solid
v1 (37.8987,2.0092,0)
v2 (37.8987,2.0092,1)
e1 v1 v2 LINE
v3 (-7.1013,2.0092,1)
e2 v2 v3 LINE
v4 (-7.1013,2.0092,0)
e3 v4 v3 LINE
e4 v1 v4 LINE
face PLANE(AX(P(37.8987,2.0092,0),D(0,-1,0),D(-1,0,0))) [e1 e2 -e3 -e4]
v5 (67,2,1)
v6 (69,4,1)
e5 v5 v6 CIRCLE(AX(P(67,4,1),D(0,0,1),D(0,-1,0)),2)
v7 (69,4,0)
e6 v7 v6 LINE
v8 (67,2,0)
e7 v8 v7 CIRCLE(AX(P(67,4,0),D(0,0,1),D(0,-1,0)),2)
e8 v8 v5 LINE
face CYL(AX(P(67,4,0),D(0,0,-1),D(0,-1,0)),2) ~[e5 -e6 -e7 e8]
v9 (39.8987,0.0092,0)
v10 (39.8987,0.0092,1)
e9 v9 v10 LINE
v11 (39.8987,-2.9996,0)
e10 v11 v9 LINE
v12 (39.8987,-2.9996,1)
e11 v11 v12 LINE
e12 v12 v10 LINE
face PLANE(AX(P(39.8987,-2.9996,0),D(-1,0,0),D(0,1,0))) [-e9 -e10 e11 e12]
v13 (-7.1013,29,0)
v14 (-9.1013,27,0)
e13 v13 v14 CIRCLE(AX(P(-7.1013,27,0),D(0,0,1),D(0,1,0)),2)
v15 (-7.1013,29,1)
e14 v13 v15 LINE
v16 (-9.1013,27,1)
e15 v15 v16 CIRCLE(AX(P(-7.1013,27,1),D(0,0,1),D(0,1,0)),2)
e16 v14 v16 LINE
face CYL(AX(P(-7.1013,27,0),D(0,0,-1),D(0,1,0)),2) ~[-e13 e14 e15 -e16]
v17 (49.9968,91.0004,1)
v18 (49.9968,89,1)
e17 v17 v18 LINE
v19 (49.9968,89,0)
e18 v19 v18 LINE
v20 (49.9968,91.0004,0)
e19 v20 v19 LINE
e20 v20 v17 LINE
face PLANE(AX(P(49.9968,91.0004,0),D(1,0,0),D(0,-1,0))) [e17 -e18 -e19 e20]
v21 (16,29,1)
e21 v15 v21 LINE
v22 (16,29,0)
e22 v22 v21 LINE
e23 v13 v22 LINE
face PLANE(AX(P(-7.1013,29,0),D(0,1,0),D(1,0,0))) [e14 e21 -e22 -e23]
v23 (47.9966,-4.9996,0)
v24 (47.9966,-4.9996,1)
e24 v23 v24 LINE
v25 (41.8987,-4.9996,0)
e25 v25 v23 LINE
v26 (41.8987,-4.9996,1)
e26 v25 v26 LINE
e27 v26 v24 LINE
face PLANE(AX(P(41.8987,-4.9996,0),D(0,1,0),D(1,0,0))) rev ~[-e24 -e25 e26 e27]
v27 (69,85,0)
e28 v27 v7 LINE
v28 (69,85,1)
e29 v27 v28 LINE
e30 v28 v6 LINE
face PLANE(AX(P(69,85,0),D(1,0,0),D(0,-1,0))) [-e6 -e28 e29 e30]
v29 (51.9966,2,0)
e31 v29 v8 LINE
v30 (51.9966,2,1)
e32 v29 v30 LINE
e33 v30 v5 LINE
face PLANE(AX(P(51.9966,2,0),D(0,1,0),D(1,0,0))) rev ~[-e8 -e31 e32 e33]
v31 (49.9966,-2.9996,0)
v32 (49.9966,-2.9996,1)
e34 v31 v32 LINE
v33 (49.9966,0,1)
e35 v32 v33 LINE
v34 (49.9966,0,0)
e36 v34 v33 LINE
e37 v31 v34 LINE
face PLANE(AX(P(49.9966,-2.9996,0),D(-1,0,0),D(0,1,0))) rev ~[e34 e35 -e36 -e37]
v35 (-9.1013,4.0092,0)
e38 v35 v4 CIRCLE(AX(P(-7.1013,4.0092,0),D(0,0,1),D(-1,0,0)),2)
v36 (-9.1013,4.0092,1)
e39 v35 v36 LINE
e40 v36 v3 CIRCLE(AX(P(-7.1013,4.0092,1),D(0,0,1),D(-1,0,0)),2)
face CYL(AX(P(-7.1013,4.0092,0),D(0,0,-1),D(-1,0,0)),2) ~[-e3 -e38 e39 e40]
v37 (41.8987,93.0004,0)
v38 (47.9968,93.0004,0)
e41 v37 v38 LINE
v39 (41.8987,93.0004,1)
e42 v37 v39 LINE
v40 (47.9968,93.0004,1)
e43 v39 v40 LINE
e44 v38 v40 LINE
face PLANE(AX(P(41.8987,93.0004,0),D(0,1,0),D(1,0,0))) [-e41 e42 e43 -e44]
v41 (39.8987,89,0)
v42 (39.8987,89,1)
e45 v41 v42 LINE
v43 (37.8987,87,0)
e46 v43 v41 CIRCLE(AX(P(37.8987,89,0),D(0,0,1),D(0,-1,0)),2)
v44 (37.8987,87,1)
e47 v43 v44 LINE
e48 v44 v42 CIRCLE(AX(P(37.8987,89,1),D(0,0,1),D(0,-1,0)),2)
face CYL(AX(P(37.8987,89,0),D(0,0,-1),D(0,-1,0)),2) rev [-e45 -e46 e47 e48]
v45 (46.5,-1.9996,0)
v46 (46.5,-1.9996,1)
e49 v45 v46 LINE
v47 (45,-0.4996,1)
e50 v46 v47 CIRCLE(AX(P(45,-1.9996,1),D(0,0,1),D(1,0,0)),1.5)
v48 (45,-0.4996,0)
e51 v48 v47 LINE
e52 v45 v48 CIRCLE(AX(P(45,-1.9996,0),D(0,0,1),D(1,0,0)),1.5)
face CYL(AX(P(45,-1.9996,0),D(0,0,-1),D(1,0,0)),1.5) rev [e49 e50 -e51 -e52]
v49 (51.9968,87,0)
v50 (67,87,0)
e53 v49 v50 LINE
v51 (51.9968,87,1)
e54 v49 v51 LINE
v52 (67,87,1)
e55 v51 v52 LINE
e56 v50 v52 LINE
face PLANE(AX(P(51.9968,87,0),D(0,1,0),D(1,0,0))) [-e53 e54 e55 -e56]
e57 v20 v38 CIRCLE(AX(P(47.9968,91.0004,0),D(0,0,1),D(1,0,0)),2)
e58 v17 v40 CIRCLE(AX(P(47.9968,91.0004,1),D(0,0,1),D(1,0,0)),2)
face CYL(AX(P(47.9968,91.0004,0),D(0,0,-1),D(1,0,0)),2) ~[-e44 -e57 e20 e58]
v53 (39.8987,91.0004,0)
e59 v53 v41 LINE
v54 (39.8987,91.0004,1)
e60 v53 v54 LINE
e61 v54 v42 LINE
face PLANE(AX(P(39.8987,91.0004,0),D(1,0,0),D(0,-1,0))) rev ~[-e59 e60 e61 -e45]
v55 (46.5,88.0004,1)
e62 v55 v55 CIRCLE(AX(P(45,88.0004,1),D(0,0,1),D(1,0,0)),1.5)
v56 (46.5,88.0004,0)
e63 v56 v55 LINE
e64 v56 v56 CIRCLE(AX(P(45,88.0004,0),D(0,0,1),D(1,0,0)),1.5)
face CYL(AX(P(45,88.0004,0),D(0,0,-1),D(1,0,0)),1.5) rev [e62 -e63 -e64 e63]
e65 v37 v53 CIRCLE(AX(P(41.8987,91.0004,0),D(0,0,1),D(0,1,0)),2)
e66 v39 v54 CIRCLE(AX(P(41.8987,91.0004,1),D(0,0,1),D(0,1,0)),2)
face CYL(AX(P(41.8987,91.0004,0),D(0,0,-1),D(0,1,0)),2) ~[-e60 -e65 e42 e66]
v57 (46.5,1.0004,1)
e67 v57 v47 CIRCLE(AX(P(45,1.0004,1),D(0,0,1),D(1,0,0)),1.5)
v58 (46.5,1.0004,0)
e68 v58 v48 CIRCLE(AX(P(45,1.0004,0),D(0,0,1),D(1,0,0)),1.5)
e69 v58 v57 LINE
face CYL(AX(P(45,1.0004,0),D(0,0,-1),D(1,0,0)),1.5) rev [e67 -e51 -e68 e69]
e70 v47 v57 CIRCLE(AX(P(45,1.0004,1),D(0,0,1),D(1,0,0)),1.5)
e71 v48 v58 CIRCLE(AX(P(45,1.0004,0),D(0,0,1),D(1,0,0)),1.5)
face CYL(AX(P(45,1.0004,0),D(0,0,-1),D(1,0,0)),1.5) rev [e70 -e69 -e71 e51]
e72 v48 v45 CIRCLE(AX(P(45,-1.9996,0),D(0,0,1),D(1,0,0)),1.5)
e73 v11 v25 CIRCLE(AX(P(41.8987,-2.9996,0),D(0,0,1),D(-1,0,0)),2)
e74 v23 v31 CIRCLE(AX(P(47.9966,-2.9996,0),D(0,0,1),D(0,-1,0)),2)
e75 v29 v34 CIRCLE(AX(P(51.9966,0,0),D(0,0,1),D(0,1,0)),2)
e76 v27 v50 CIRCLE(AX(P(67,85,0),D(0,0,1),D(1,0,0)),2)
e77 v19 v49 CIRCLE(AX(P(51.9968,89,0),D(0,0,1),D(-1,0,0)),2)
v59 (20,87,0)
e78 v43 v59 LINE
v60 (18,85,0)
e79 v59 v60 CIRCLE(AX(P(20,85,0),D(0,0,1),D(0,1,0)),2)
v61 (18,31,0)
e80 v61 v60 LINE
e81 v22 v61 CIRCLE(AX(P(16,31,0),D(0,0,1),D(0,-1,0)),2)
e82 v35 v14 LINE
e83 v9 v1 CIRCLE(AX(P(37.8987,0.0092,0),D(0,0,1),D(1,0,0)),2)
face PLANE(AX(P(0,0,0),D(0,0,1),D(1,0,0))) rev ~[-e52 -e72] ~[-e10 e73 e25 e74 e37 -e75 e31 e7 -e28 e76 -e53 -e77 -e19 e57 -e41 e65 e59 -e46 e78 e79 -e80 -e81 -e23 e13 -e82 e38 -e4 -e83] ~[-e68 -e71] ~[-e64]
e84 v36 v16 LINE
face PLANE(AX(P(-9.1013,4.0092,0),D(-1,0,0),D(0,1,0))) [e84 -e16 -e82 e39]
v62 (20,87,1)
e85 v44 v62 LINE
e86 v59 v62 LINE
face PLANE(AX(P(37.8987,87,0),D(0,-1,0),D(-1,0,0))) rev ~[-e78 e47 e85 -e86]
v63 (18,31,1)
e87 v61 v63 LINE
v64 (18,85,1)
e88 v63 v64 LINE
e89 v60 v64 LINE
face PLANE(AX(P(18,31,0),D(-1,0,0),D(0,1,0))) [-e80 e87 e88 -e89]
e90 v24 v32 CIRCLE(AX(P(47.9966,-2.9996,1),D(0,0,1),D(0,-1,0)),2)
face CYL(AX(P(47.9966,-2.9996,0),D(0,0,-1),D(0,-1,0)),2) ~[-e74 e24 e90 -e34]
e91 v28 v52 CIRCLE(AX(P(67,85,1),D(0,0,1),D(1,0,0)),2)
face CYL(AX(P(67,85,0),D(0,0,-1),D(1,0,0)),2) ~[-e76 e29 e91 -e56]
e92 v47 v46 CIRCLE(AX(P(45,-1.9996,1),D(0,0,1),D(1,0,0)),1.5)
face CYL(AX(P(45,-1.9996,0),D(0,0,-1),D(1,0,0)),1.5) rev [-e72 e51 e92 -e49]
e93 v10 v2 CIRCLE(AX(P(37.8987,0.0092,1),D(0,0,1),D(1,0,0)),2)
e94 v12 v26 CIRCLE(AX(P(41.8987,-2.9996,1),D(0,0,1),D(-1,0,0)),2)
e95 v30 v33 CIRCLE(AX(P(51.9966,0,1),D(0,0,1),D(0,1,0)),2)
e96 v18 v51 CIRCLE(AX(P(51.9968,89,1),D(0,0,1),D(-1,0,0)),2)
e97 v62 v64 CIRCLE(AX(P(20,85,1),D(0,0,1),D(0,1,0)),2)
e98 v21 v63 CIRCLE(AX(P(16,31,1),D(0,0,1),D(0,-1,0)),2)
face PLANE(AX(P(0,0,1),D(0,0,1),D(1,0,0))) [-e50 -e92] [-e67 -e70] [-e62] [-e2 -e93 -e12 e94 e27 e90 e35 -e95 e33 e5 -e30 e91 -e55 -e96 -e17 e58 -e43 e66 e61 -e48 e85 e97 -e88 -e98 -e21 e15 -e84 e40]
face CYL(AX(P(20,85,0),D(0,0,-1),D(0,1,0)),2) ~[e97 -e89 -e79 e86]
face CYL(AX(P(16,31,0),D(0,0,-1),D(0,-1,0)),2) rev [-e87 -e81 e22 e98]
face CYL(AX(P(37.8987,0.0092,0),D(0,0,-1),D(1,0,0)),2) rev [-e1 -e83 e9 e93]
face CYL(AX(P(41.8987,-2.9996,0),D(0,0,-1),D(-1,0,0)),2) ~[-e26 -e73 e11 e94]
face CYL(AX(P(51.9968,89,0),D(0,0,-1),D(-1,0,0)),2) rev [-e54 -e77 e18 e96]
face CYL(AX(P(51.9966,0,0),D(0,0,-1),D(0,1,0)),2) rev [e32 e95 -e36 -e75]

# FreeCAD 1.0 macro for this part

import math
import FreeCAD as App
import Part
import Sketcher
Q = App.Units.Quantity

doc = App.newDocument("Part")
params = doc.addObject("Spreadsheet::Sheet", "Params")
for row, (alias, value) in enumerate([
    ("sketch1_diameter", "3 mm"),
    ("sketch1_radius", "2 mm"),
    ("sketch1_width", "45 mm"),
    ("sketch1_height", "54 mm"),
    ("pad1_length", "1 mm"),
], start=1):
    params.set(f"A{row}", alias)
    params.set(f"B{row}", "=" + value)
    params.setAlias(f"B{row}", alias)

body = doc.addObject("PartDesign::Body", "Body")

sketch1 = doc.addObject("Sketcher::SketchObject", "Sketch")
body.addObject(sketch1)
sketch1.AttachmentSupport = (doc.XY_Plane, [""])
sketch1.MapMode = "FlatFace"
sketch1.addGeometry([
    Part.LineSegment(App.Vector(69, 4, 0), App.Vector(69, 85, 0)),
    Part.ArcOfCircle(Part.Circle(App.Vector(67, 85, 0), App.Vector(0, 0, 1), 2), math.radians(0), math.radians(90)),
    Part.LineSegment(App.Vector(67, 87, 0), App.Vector(52, 87, 0)),
    Part.ArcOfCircle(Part.Circle(App.Vector(52, 89, 0), App.Vector(0, 0, 1), 2), math.radians(180), math.radians(270)),
    Part.LineSegment(App.Vector(50, 89, 0), App.Vector(50, 91, 0)),
    Part.ArcOfCircle(Part.Circle(App.Vector(48, 91, 0), App.Vector(0, 0, 1), 2), math.radians(0), math.radians(90)),
    Part.LineSegment(App.Vector(48, 93, 0), App.Vector(41.9, 93, 0)),
    Part.ArcOfCircle(Part.Circle(App.Vector(41.9, 91, 0), App.Vector(0, 0, 1), 2), math.radians(90), math.radians(180)),
    Part.LineSegment(App.Vector(39.9, 91, 0), App.Vector(39.9, 89, 0)),
    Part.ArcOfCircle(Part.Circle(App.Vector(37.9, 89, 0), App.Vector(0, 0, 1), 2), math.radians(-90), math.radians(0)),
    Part.LineSegment(App.Vector(37.9, 87, 0), App.Vector(20, 87, 0)),
    Part.ArcOfCircle(Part.Circle(App.Vector(20, 85, 0), App.Vector(0, 0, 1), 2), math.radians(90), math.radians(180)),
    Part.LineSegment(App.Vector(18, 85, 0), App.Vector(18, 31, 0)),
    Part.ArcOfCircle(Part.Circle(App.Vector(16, 31, 0), App.Vector(0, 0, 1), 2), math.radians(-90), math.radians(0)),
    Part.LineSegment(App.Vector(16, 29, 0), App.Vector(-7.1, 29, 0)),
    Part.ArcOfCircle(Part.Circle(App.Vector(-7.1, 27, 0), App.Vector(0, 0, 1), 2), math.radians(90), math.radians(180)),
    Part.LineSegment(App.Vector(-9.1, 27, 0), App.Vector(-9.1, 4, 0)),
    Part.ArcOfCircle(Part.Circle(App.Vector(-7.1, 4, 0), App.Vector(0, 0, 1), 2), math.radians(180), math.radians(270)),
    Part.LineSegment(App.Vector(-7.1, 2, 0), App.Vector(37.9, 2, 0)),
    Part.ArcOfCircle(Part.Circle(App.Vector(37.9, 0, 0), App.Vector(0, 0, 1), 2), math.radians(0), math.radians(90)),
    Part.LineSegment(App.Vector(39.9, 0, 0), App.Vector(39.9, -3, 0)),
    Part.ArcOfCircle(Part.Circle(App.Vector(41.9, -3, 0), App.Vector(0, 0, 1), 2), math.radians(180), math.radians(270)),
    Part.LineSegment(App.Vector(41.9, -5, 0), App.Vector(48, -5, 0)),
    Part.ArcOfCircle(Part.Circle(App.Vector(48, -3, 0), App.Vector(0, 0, 1), 2), math.radians(-90), math.radians(0)),
    Part.LineSegment(App.Vector(50, -3, 0), App.Vector(50, 0, 0)),
    Part.ArcOfCircle(Part.Circle(App.Vector(52, 0, 0), App.Vector(0, 0, 1), 2), math.radians(90), math.radians(180)),
    Part.LineSegment(App.Vector(52, 2, 0), App.Vector(67, 2, 0)),
    Part.ArcOfCircle(Part.Circle(App.Vector(67, 4, 0), App.Vector(0, 0, 1), 2), math.radians(-90), math.radians(0)),
    Part.Circle(App.Vector(45, -2, 0), App.Vector(0, 0, 1), 1.5),
    Part.Circle(App.Vector(45, 1, 0), App.Vector(0, 0, 1), 1.5),
    Part.Circle(App.Vector(45, 88, 0), App.Vector(0, 0, 1), 1.5),
], False)
sketch1.addConstraint([
    Sketcher.Constraint("Tangent", 0, 2, 1, 1),
    Sketcher.Constraint("Tangent", 1, 2, 2, 1),
    Sketcher.Constraint("Tangent", 2, 2, 3, 2),
    Sketcher.Constraint("Tangent", 3, 1, 4, 1),
    Sketcher.Constraint("Tangent", 4, 2, 5, 1),
    Sketcher.Constraint("Tangent", 5, 2, 6, 1),
    Sketcher.Constraint("Tangent", 6, 2, 7, 1),
    Sketcher.Constraint("Tangent", 7, 2, 8, 1),
    Sketcher.Constraint("Tangent", 8, 2, 9, 2),
    Sketcher.Constraint("Tangent", 9, 1, 10, 1),
    Sketcher.Constraint("Tangent", 10, 2, 11, 1),
    Sketcher.Constraint("Tangent", 11, 2, 12, 1),
    Sketcher.Constraint("Tangent", 12, 2, 13, 2),
    Sketcher.Constraint("Tangent", 13, 1, 14, 1),
    Sketcher.Constraint("Tangent", 14, 2, 15, 1),
    Sketcher.Constraint("Tangent", 15, 2, 16, 1),
    Sketcher.Constraint("Tangent", 16, 2, 17, 1),
    Sketcher.Constraint("Tangent", 17, 2, 18, 1),
    Sketcher.Constraint("Tangent", 18, 2, 19, 2),
    Sketcher.Constraint("Tangent", 19, 1, 20, 1),
    Sketcher.Constraint("Tangent", 20, 2, 21, 1),
    Sketcher.Constraint("Tangent", 21, 2, 22, 1),
    Sketcher.Constraint("Tangent", 22, 2, 23, 1),
    Sketcher.Constraint("Tangent", 23, 2, 24, 1),
    Sketcher.Constraint("Tangent", 24, 2, 25, 2),
    Sketcher.Constraint("Tangent", 25, 1, 26, 1),
    Sketcher.Constraint("Tangent", 26, 2, 27, 1),
    Sketcher.Constraint("Tangent", 27, 2, 0, 1),
    Sketcher.Constraint("Vertical", 0),
    Sketcher.Constraint("Horizontal", 2),
    Sketcher.Constraint("Vertical", 4),
    Sketcher.Constraint("Horizontal", 6),
    Sketcher.Constraint("Vertical", 8),
    Sketcher.Constraint("Horizontal", 10),
    Sketcher.Constraint("Vertical", 12),
    Sketcher.Constraint("Horizontal", 14),
    Sketcher.Constraint("Vertical", 16),
    Sketcher.Constraint("Horizontal", 18),
    Sketcher.Constraint("Vertical", 20),
    Sketcher.Constraint("Horizontal", 22),
    Sketcher.Constraint("Vertical", 24),
    Sketcher.Constraint("Horizontal", 26),
    Sketcher.Constraint("Equal", 1, 3),
    Sketcher.Constraint("Equal", 3, 5),
    Sketcher.Constraint("Equal", 5, 7),
    Sketcher.Constraint("Equal", 7, 9),
    Sketcher.Constraint("Equal", 9, 11),
    Sketcher.Constraint("Equal", 11, 13),
    Sketcher.Constraint("Equal", 13, 15),
    Sketcher.Constraint("Equal", 15, 17),
    Sketcher.Constraint("Equal", 17, 19),
    Sketcher.Constraint("Equal", 19, 21),
    Sketcher.Constraint("Equal", 21, 23),
    Sketcher.Constraint("Equal", 23, 25),
    Sketcher.Constraint("Equal", 25, 27),
    Sketcher.Constraint("Equal", 28, 29),
    Sketcher.Constraint("Equal", 29, 30),
    Sketcher.Constraint("PointOnObject", 25, 3, -1),
    Sketcher.Constraint("Horizontal", 3, 3, 9, 3),
    Sketcher.Constraint("Vertical", 9, 3, 19, 3),
    Sketcher.Constraint("Vertical", 5, 3, 23, 3),
    Sketcher.Constraint("Vertical", 28, 3, 29, 3),
    Sketcher.Constraint("Vertical", 29, 3, 30, 3),
    Sketcher.Constraint("Diameter", 28, Q("3 mm")),
    Sketcher.Constraint("Radius", 1, Q("2 mm")),
    Sketcher.Constraint("DistanceY", -1, 1, 1, 2, Q("87 mm")),
    Sketcher.Constraint("DistanceY", 28, 3, 29, 3, Q("3 mm")),
    Sketcher.Constraint("DistanceY", 30, 3, 5, 3, Q("3 mm")),
    Sketcher.Constraint("DistanceX", 30, 3, 0, 2, Q("24 mm")),
    Sketcher.Constraint("DistanceY", 21, 2, 28, 3, Q("3 mm")),
    Sketcher.Constraint("DistanceX", 18, 1, 18, 2, Q("45 mm")),
    Sketcher.Constraint("DistanceY", 12, 2, 12, 1, Q("54 mm")),
    Sketcher.Constraint("DistanceY", 4, 1, 4, 2, Q("2.0004 mm")),
    Sketcher.Constraint("DistanceY", 24, 1, 24, 2, Q("2.9996 mm")),
    Sketcher.Constraint("DistanceX", -1, 1, 1, 3, Q("67 mm")),
    Sketcher.Constraint("DistanceX", -1, 1, 11, 3, Q("20 mm")),
    Sketcher.Constraint("DistanceX", 6, 2, 6, 1, Q("6.098 mm")),
    Sketcher.Constraint("DistanceX", 2, 2, 2, 1, Q("15.0032 mm")),
    Sketcher.Constraint("DistanceY", 16, 2, 16, 1, Q("22.9908 mm")),
])
sketch1.setExpression("Constraints[63]", "Params.sketch1_diameter")
sketch1.setExpression("Constraints[64]", "Params.sketch1_radius")
sketch1.setExpression("Constraints[70]", "Params.sketch1_width")
sketch1.setExpression("Constraints[71]", "Params.sketch1_height")
pad1 = doc.addObject("PartDesign::Pad", "Pad")
body.addObject(pad1)
pad1.Profile = sketch1
pad1.setExpression("Length", "Params.pad1_length")

doc.recompute()
